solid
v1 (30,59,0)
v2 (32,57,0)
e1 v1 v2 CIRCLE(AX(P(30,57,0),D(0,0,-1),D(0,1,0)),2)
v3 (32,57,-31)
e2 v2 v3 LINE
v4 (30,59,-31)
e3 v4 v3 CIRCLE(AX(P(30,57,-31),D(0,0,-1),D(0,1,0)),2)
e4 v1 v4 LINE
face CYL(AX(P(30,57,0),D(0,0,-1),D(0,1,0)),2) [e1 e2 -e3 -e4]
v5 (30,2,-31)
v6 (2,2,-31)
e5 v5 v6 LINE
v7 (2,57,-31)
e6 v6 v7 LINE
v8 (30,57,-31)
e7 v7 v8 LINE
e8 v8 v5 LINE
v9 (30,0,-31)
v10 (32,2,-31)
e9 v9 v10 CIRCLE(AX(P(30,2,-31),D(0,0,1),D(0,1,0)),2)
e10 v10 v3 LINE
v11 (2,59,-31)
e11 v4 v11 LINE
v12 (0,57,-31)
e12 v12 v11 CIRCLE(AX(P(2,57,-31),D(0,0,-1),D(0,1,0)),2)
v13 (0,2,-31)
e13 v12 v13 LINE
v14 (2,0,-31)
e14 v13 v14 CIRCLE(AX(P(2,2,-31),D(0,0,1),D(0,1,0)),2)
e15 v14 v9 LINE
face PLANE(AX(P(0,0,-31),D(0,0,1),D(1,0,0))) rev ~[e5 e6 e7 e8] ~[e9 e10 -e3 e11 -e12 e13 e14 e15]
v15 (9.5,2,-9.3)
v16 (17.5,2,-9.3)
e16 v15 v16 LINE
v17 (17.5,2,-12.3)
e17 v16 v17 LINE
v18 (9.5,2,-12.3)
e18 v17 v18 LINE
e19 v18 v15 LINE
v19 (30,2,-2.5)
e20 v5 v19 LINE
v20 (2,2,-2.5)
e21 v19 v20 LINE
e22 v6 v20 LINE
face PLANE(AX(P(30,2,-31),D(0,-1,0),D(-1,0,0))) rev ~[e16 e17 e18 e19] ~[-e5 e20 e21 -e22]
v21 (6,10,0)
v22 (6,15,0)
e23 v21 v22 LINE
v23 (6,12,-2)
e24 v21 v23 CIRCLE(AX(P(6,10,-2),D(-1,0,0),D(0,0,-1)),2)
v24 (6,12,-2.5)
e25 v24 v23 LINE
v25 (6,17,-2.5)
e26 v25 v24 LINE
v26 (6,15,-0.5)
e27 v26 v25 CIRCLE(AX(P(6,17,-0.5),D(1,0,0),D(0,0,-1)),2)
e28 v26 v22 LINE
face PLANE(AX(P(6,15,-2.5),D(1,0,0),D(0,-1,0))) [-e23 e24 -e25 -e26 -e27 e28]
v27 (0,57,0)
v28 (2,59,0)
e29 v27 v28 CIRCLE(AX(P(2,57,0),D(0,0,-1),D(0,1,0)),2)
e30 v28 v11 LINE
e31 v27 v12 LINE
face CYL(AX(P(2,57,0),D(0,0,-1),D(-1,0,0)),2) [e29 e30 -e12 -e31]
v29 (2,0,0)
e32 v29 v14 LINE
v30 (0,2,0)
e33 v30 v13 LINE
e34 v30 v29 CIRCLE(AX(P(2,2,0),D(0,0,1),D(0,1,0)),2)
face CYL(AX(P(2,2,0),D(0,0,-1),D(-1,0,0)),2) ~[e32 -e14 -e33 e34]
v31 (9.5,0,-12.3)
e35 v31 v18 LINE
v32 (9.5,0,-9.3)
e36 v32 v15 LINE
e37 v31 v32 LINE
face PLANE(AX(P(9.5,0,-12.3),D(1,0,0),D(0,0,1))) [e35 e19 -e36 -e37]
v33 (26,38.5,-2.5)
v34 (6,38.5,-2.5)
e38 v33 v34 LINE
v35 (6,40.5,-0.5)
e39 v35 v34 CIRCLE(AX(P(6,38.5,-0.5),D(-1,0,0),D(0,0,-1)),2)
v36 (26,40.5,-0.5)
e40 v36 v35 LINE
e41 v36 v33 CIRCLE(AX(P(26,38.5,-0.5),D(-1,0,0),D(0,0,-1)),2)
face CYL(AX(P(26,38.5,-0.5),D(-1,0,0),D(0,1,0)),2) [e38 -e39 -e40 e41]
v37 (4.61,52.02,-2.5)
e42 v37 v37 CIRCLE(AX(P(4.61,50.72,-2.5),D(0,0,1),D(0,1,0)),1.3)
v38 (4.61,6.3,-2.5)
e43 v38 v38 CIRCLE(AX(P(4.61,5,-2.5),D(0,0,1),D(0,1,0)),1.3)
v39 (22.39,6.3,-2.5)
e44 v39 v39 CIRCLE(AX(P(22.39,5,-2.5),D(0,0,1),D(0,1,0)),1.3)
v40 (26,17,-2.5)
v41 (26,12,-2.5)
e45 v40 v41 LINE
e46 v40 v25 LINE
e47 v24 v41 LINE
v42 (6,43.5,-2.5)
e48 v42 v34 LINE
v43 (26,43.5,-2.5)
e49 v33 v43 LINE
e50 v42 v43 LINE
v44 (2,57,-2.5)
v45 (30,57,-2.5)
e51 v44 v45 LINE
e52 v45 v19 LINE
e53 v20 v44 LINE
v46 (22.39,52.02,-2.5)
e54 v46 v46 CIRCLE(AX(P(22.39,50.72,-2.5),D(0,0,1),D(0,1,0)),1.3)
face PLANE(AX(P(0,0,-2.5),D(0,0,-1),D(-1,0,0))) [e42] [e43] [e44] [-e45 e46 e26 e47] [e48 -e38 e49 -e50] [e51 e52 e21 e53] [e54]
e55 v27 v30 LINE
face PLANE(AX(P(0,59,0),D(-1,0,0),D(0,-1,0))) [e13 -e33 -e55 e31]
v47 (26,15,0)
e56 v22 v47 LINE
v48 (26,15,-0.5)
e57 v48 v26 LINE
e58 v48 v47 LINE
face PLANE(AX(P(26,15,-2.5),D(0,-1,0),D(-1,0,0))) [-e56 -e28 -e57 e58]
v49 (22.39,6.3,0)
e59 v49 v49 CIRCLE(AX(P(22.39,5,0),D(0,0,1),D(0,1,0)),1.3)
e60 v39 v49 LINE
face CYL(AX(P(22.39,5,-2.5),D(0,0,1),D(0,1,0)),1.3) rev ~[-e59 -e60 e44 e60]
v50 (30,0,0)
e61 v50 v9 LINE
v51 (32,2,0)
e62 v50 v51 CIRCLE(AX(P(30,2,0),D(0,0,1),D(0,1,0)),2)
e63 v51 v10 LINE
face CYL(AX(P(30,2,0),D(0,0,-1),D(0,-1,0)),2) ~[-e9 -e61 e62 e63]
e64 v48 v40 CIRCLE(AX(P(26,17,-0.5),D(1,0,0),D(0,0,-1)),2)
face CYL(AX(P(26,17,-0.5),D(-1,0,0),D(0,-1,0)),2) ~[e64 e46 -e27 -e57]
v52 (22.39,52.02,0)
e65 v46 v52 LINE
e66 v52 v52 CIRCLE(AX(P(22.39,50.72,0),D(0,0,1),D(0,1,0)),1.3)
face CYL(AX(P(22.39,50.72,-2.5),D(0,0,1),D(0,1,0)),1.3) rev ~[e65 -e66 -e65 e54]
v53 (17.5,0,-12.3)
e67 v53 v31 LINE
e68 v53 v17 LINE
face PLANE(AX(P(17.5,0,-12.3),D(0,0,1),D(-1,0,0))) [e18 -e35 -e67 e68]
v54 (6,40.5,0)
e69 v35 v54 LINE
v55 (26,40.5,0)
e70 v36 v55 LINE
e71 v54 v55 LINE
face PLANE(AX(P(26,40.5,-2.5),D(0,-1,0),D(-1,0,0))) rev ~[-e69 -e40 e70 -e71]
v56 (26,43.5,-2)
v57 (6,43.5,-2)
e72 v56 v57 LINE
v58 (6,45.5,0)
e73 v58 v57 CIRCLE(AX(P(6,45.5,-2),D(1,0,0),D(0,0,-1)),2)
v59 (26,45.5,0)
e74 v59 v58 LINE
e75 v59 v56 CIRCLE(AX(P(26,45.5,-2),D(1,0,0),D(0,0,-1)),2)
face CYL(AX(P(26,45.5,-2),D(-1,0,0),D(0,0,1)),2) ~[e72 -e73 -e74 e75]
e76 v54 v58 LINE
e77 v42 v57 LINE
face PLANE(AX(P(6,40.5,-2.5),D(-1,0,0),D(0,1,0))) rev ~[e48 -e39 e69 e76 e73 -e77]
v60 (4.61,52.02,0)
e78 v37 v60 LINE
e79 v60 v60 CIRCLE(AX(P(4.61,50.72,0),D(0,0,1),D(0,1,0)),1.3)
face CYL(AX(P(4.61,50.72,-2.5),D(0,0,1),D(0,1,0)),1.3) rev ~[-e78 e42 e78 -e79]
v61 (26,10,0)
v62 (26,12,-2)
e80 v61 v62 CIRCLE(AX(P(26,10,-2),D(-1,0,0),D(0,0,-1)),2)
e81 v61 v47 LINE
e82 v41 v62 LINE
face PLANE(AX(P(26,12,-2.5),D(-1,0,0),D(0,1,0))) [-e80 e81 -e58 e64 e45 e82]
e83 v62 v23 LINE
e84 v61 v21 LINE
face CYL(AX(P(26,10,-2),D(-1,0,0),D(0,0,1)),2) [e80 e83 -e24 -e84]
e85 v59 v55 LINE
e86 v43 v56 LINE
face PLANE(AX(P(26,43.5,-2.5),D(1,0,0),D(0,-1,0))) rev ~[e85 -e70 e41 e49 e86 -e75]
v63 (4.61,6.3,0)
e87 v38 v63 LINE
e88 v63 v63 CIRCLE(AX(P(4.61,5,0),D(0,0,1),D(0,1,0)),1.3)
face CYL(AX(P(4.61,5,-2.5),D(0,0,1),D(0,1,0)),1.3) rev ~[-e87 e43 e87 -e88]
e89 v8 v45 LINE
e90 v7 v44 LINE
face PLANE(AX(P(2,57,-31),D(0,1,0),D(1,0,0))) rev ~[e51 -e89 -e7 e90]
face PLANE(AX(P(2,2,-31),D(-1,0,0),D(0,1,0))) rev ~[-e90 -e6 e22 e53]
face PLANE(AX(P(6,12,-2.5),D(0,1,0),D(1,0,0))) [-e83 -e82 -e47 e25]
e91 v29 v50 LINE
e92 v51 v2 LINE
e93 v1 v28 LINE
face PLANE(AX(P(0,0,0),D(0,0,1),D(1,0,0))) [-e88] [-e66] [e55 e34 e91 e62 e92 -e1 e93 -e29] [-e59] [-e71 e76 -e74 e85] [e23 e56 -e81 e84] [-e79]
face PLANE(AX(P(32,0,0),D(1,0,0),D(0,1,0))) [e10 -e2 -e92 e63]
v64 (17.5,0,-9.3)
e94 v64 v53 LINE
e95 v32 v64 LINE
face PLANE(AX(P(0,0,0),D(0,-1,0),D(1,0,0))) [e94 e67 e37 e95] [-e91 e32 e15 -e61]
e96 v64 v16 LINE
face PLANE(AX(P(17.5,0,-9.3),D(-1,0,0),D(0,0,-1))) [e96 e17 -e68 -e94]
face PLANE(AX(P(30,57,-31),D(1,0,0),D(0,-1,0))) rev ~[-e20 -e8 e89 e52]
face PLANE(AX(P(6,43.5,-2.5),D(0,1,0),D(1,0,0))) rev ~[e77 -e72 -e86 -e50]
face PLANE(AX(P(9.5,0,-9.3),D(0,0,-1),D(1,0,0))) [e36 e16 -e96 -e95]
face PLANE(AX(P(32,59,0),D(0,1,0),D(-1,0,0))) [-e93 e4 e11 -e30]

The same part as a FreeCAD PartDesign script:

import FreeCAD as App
import Part
import Sketcher
from FreeCAD import Vector


def edges_at(feature, points):
    """Names of the edges that pass closest to the given points."""
    edges = feature.Shape.Edges
    near = lambda p: min(range(len(edges)), key=lambda i: edges[i].distToShape(Part.Vertex(*p))[0])
    return sorted({f"Edge{near(p) + 1}" for p in points})

doc = App.newDocument("Part")
body = doc.addObject("PartDesign::Body", "Body")

# Sketch on XY plane
sketch1 = body.newObject("Sketcher::SketchObject", "Sketch")
sketch1.AttachmentSupport = (doc.getObject("XY_Plane"), [""])
sketch1.MapMode = "FlatFace"
sketch1.addGeometry([
    Part.LineSegment(Vector(0, 59, 0), Vector(0, 0, 0)),
    Part.LineSegment(Vector(0, 0, 0), Vector(32, 0, 0)),
    Part.LineSegment(Vector(32, 0, 0), Vector(32, 59, 0)),
    Part.LineSegment(Vector(32, 59, 0), Vector(0, 59, 0)),
], False)
sketch1.addConstraint([
    Sketcher.Constraint("Coincident", 0, 2, 1, 1),
    Sketcher.Constraint("Coincident", 1, 2, 2, 1),
    Sketcher.Constraint("Coincident", 2, 2, 3, 1),
    Sketcher.Constraint("Coincident", 3, 2, 0, 1),
    Sketcher.Constraint("Vertical", 0),
    Sketcher.Constraint("Horizontal", 1),
    Sketcher.Constraint("Vertical", 2),
    Sketcher.Constraint("Horizontal", 3),
    Sketcher.Constraint("Coincident", 0, 2, -1, 1),
    Sketcher.Constraint("DistanceX", 1, 1, 1, 2, 32.0),
    Sketcher.Constraint("DistanceY", 0, 2, 0, 1, 59.0),
])
pad1 = body.newObject("PartDesign::Pad", "Pad")
pad1.Profile = sketch1
pad1.Length = 31
pad1.Reversed = True

# Sketch on XY plane
sketch2 = body.newObject("Sketcher::SketchObject", "Sketch001")
sketch2.AttachmentSupport = (doc.getObject("XY_Plane"), [""])
sketch2.MapMode = "FlatFace"
sketch2.AttachmentOffset = App.Placement(Vector(0, 0, -31), App.Rotation())
sketch2.addGeometry([
    Part.LineSegment(Vector(2, 2, 0), Vector(2, 57, 0)),
    Part.LineSegment(Vector(2, 57, 0), Vector(30, 57, 0)),
    Part.LineSegment(Vector(30, 57, 0), Vector(30, 2, 0)),
    Part.LineSegment(Vector(30, 2, 0), Vector(2, 2, 0)),
], False)
sketch2.addConstraint([
    Sketcher.Constraint("Coincident", 0, 2, 1, 1),
    Sketcher.Constraint("Coincident", 1, 2, 2, 1),
    Sketcher.Constraint("Coincident", 2, 2, 3, 1),
    Sketcher.Constraint("Coincident", 3, 2, 0, 1),
    Sketcher.Constraint("Vertical", 0),
    Sketcher.Constraint("Horizontal", 1),
    Sketcher.Constraint("Vertical", 2),
    Sketcher.Constraint("Horizontal", 3),
    Sketcher.Constraint("DistanceX", -1, 1, 0, 2, 2.0),
    Sketcher.Constraint("DistanceY", -1, 1, 2, 2, 2.0),
    Sketcher.Constraint("DistanceX", 1, 1, 1, 2, 28.0),
    Sketcher.Constraint("DistanceY", 0, 1, 0, 2, 55.0),
])
pocket1 = body.newObject("PartDesign::Pocket", "Pocket")
pocket1.Profile = sketch2
pocket1.Length = 28.5
pocket1.Reversed = True

# Sketch on XY plane
sketch3 = body.newObject("Sketcher::SketchObject", "Sketch002")
sketch3.AttachmentSupport = (doc.getObject("XY_Plane"), [""])
sketch3.MapMode = "FlatFace"
sketch3.AttachmentOffset = App.Placement(Vector(0, 0, -2.5), App.Rotation())
sketch3.addGeometry([
    Part.LineSegment(Vector(26, 12, 0), Vector(6, 12, 0)),  # 0
    Part.LineSegment(Vector(6, 12, 0), Vector(6, 15, 0)),  # 1
    Part.LineSegment(Vector(6, 15, 0), Vector(26, 15, 0)),  # 2
    Part.LineSegment(Vector(26, 15, 0), Vector(26, 12, 0)),  # 3
    Part.LineSegment(Vector(6, 40.5, 0), Vector(6, 43.5, 0)),  # 4
    Part.LineSegment(Vector(6, 43.5, 0), Vector(26, 43.5, 0)),  # 5
    Part.LineSegment(Vector(26, 43.5, 0), Vector(26, 40.5, 0)),  # 6
    Part.LineSegment(Vector(26, 40.5, 0), Vector(6, 40.5, 0)),  # 7
], False)
sketch3.addConstraint([
    Sketcher.Constraint("Coincident", 0, 2, 1, 1),
    Sketcher.Constraint("Coincident", 1, 2, 2, 1),
    Sketcher.Constraint("Coincident", 2, 2, 3, 1),
    Sketcher.Constraint("Coincident", 3, 2, 0, 1),
    Sketcher.Constraint("Coincident", 4, 2, 5, 1),
    Sketcher.Constraint("Coincident", 5, 2, 6, 1),
    Sketcher.Constraint("Coincident", 6, 2, 7, 1),
    Sketcher.Constraint("Coincident", 7, 2, 4, 1),
    Sketcher.Constraint("Horizontal", 0),
    Sketcher.Constraint("Vertical", 1),
    Sketcher.Constraint("Horizontal", 2),
    Sketcher.Constraint("Vertical", 3),
    Sketcher.Constraint("Vertical", 4),
    Sketcher.Constraint("Horizontal", 5),
    Sketcher.Constraint("Vertical", 6),
    Sketcher.Constraint("Horizontal", 7),
    Sketcher.Constraint("Vertical", 1, 2, 4, 2),
    Sketcher.Constraint("Vertical", 3, 2, 5, 2),
    Sketcher.Constraint("Equal", 3, 4),
    Sketcher.Constraint("DistanceX", 0, 2, 0, 1, 20.0),
    Sketcher.Constraint("DistanceY", 1, 1, 1, 2, 3.0),
    Sketcher.Constraint("DistanceX", -1, 1, 0, 2, 6.0),
    Sketcher.Constraint("DistanceY", -1, 1, 0, 2, 12.0),
    Sketcher.Constraint("DistanceY", -1, 1, 4, 2, 43.5),
])
pocket2 = body.newObject("PartDesign::Pocket", "Pocket001")
pocket2.Profile = sketch3
pocket2.Type = "ThroughAll"
pocket2.Reversed = True

# Sketch on XZ plane
sketch4 = body.newObject("Sketcher::SketchObject", "Sketch003")
sketch4.AttachmentSupport = (doc.getObject("XZ_Plane"), [""])
sketch4.MapMode = "FlatFace"
sketch4.addGeometry([
    Part.LineSegment(Vector(9.5, -12.3, 0), Vector(17.5, -12.3, 0)),
    Part.LineSegment(Vector(17.5, -12.3, 0), Vector(17.5, -9.3, 0)),
    Part.LineSegment(Vector(17.5, -9.3, 0), Vector(9.5, -9.3, 0)),
    Part.LineSegment(Vector(9.5, -9.3, 0), Vector(9.5, -12.3, 0)),
], False)
sketch4.addConstraint([
    Sketcher.Constraint("Coincident", 0, 2, 1, 1),
    Sketcher.Constraint("Coincident", 1, 2, 2, 1),
    Sketcher.Constraint("Coincident", 2, 2, 3, 1),
    Sketcher.Constraint("Coincident", 3, 2, 0, 1),
    Sketcher.Constraint("Horizontal", 0),
    Sketcher.Constraint("Vertical", 1),
    Sketcher.Constraint("Horizontal", 2),
    Sketcher.Constraint("Vertical", 3),
    Sketcher.Constraint("DistanceX", 0, 1, 0, 2, 8.0),
    Sketcher.Constraint("DistanceY", 1, 1, 1, 2, 3.0),
    Sketcher.Constraint("DistanceX", -1, 1, 0, 2, 17.5),
    Sketcher.Constraint("DistanceY", 0, 2, -1, 1, 12.3),
])
pocket3 = body.newObject("PartDesign::Pocket", "Pocket002")
pocket3.Profile = sketch4
pocket3.Length = 2
doc.recompute()

fillet = body.newObject("PartDesign::Fillet", "Fillet")
fillet.Base = (pocket3, edges_at(pocket3, [
    (32, 0, -15.5),
    (0, 0, -15.5),
    (0, 59, -15.5),
    (32, 59, -15.5),
]))
fillet.Radius = 2
doc.recompute()

fillet2 = body.newObject("PartDesign::Fillet", "Fillet001")
fillet2.Base = (fillet, edges_at(fillet, [(16, 15, -2.5), (16, 40.5, -2.5)]))
fillet2.Radius = 2
doc.recompute()

fillet3 = body.newObject("PartDesign::Fillet", "Fillet002")
fillet3.Base = (fillet2, edges_at(fillet2, [(16, 12, 0), (16, 43.5, 0)]))
fillet3.Radius = 2

# Sketch on XY plane
sketch5 = body.newObject("Sketcher::SketchObject", "Sketch004")
sketch5.AttachmentSupport = (doc.getObject("XY_Plane"), [""])
sketch5.MapMode = "FlatFace"
sketch5.AttachmentOffset = App.Placement(Vector(0, 0, -2.5), App.Rotation())
sketch5.addGeometry([
    Part.Circle(Vector(22.4, 5, 0), Vector(0, 0, 1), 1.3),
    Part.Circle(Vector(4.6, 5, 0), Vector(0, 0, 1), 1.3),
    Part.Circle(Vector(22.4, 50.7, 0), Vector(0, 0, 1), 1.3),
    Part.Circle(Vector(4.6, 50.7, 0), Vector(0, 0, 1), 1.3),
], False)
sketch5.addConstraint([
    Sketcher.Constraint("Equal", 0, 1),
    Sketcher.Constraint("Equal", 1, 2),
    Sketcher.Constraint("Equal", 2, 3),
    Sketcher.Constraint("Horizontal", 0, 3, 1, 3),
    Sketcher.Constraint("Horizontal", 2, 3, 3, 3),
    Sketcher.Constraint("Vertical", 0, 3, 2, 3),
    Sketcher.Constraint("Vertical", 1, 3, 3, 3),
    Sketcher.Constraint("Diameter", 0, 2.6),
    Sketcher.Constraint("DistanceY", -1, 1, 0, 3, 5.0),
    Sketcher.Constraint("DistanceX", -1, 1, 0, 3, 22.39),
    Sketcher.Constraint("DistanceX", -1, 1, 1, 3, 4.61),
    Sketcher.Constraint("DistanceY", -1, 1, 2, 3, 50.72),
])
doc.recompute()
hole = body.newObject("PartDesign::Hole", "Hole")
hole.Profile = sketch5
hole.ThreadType = "None"
hole.Diameter = 2.6
hole.DepthType = "ThroughAll"
hole.Reversed = True

doc.recompute()
